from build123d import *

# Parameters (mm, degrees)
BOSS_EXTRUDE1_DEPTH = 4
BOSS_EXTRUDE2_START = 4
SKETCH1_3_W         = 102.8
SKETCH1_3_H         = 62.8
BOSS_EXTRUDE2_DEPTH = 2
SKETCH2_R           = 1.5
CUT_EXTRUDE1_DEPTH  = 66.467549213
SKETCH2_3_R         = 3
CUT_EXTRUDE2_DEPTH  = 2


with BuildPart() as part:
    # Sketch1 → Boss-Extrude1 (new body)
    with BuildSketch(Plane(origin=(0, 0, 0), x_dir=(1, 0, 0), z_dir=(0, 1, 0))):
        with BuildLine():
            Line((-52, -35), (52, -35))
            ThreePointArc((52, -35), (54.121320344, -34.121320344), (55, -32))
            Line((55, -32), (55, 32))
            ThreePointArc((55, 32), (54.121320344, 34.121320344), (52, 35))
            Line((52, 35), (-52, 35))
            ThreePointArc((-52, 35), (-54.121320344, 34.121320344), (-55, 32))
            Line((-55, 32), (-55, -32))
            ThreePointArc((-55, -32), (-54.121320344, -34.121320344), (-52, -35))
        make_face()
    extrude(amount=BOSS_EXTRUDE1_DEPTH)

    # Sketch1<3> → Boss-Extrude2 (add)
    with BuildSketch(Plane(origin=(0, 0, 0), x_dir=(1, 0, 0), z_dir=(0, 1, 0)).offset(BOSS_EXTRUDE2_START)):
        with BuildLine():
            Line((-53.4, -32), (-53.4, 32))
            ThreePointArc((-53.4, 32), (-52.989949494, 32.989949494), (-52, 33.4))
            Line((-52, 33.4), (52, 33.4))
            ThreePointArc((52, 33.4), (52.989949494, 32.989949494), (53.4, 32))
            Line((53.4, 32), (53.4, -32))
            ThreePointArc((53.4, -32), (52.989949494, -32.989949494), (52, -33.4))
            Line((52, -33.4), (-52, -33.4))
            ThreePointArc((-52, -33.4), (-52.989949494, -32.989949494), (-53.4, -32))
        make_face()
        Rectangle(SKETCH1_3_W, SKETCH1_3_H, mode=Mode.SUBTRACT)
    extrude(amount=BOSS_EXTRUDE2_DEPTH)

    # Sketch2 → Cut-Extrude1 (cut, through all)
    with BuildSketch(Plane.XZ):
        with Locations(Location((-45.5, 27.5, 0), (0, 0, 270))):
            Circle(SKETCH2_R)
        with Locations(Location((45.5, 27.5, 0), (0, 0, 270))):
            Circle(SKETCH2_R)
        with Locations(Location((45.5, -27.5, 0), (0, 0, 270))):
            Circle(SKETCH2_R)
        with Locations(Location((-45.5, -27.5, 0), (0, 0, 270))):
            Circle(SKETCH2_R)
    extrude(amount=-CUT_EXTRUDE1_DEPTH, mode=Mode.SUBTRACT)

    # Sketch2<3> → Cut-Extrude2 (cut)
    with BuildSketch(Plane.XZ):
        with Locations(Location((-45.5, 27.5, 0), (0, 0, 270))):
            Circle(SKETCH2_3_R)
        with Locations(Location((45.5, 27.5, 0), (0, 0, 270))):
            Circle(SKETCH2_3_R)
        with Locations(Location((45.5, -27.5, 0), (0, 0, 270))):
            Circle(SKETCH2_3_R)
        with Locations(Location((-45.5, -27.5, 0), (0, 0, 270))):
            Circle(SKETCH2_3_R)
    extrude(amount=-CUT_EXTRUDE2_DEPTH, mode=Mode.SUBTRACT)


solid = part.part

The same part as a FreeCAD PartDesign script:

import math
import FreeCAD as App
import Part
import Sketcher
from FreeCAD import Vector
Q = App.Units.Quantity

doc = App.newDocument("Part")
body = doc.addObject("PartDesign::Body", "Body")

sketch1 = body.newObject("Sketcher::SketchObject", "Sketch")
sketch1.AttachmentSupport = (doc.getObject("XZ_Plane"), [""])
sketch1.MapMode = "FlatFace"
sketch1.addGeometry(Part.LineSegment(Vector(-52, 35, 0), Vector(52, 35, 0)), False)
sketch1.addGeometry(Part.ArcOfCircle(Part.Circle(Vector(52, 32, 0), Vector(0, 0, 1), 3), math.radians(0), math.radians(90)), False)
sketch1.addGeometry(Part.LineSegment(Vector(55, 32, 0), Vector(55, -32, 0)), False)
sketch1.addGeometry(Part.ArcOfCircle(Part.Circle(Vector(52, -32, 0), Vector(0, 0, 1), 3), math.radians(-90), math.radians(0)), False)
sketch1.addGeometry(Part.LineSegment(Vector(52, -35, 0), Vector(-52, -35, 0)), False)
sketch1.addGeometry(Part.ArcOfCircle(Part.Circle(Vector(-52, -32, 0), Vector(0, 0, 1), 3), math.radians(180), math.radians(270)), False)
sketch1.addGeometry(Part.LineSegment(Vector(-55, -32, 0), Vector(-55, 32, 0)), False)
sketch1.addGeometry(Part.ArcOfCircle(Part.Circle(Vector(-52, 32, 0), Vector(0, 0, 1), 3), math.radians(90), math.radians(180)), False)
sketch1.addConstraint(Sketcher.Constraint("Tangent", 0, 2, 1, 2))
sketch1.addConstraint(Sketcher.Constraint("Tangent", 1, 1, 2, 1))
sketch1.addConstraint(Sketcher.Constraint("Tangent", 2, 2, 3, 2))
sketch1.addConstraint(Sketcher.Constraint("Tangent", 3, 1, 4, 1))
sketch1.addConstraint(Sketcher.Constraint("Tangent", 4, 2, 5, 2))
sketch1.addConstraint(Sketcher.Constraint("Tangent", 5, 1, 6, 1))
sketch1.addConstraint(Sketcher.Constraint("Tangent", 6, 2, 7, 2))
sketch1.addConstraint(Sketcher.Constraint("Tangent", 7, 1, 0, 1))
sketch1.addConstraint(Sketcher.Constraint("Horizontal", 0))
sketch1.addConstraint(Sketcher.Constraint("Vertical", 2))
sketch1.addConstraint(Sketcher.Constraint("Horizontal", 4))
sketch1.addConstraint(Sketcher.Constraint("Vertical", 6))
sketch1.addConstraint(Sketcher.Constraint("Equal", 1, 3))
sketch1.addConstraint(Sketcher.Constraint("Equal", 3, 5))
sketch1.addConstraint(Sketcher.Constraint("Equal", 5, 7))
sketch1.addConstraint(Sketcher.Constraint("Symmetric", 1, 3, 5, 3, -1, 1))
sketch1.addConstraint(Sketcher.Constraint("Radius", 1, Q("3 mm")))
sketch1.addConstraint(Sketcher.Constraint("DistanceX", 0, 1, 0, 2, Q("104 mm")))
sketch1.addConstraint(Sketcher.Constraint("DistanceY", 2, 2, 2, 1, Q("64 mm")))
pad1 = body.newObject("PartDesign::Pad", "Pad")
pad1.Profile = sketch1
pad1.Length = 4
pad1.Reversed = True

sketch2 = body.newObject("Sketcher::SketchObject", "Sketch001")
sketch2.AttachmentSupport = (doc.getObject("XZ_Plane"), [""])
sketch2.MapMode = "FlatFace"
sketch2.AttachmentOffset = App.Placement(Vector(0, 0, -4), App.Rotation())
sketch2.addGeometry(Part.LineSegment(Vector(-53.4, -32, 0), Vector(-53.4, 32, 0)), False)
sketch2.addGeometry(Part.ArcOfCircle(Part.Circle(Vector(-52, 32, 0), Vector(0, 0, 1), 1.4), math.radians(90), math.radians(180)), False)
sketch2.addGeometry(Part.LineSegment(Vector(-52, 33.4, 0), Vector(52, 33.4, 0)), False)
sketch2.addGeometry(Part.ArcOfCircle(Part.Circle(Vector(52, 32, 0), Vector(0, 0, 1), 1.4), math.radians(0), math.radians(90)), False)
sketch2.addGeometry(Part.LineSegment(Vector(53.4, 32, 0), Vector(53.4, -32, 0)), False)
sketch2.addGeometry(Part.ArcOfCircle(Part.Circle(Vector(52, -32, 0), Vector(0, 0, 1), 1.4), math.radians(-90), math.radians(0)), False)
sketch2.addGeometry(Part.LineSegment(Vector(52, -33.4, 0), Vector(-52, -33.4, 0)), False)
sketch2.addGeometry(Part.ArcOfCircle(Part.Circle(Vector(-52, -32, 0), Vector(0, 0, 1), 1.4), math.radians(180), math.radians(270)), False)
sketch2.addGeometry(Part.LineSegment(Vector(-51.4, 31.4, 0), Vector(-51.4, -31.4, 0)), False)
sketch2.addGeometry(Part.LineSegment(Vector(-51.4, -31.4, 0), Vector(51.4, -31.4, 0)), False)
sketch2.addGeometry(Part.LineSegment(Vector(51.4, -31.4, 0), Vector(51.4, 31.4, 0)), False)
sketch2.addGeometry(Part.LineSegment(Vector(51.4, 31.4, 0), Vector(-51.4, 31.4, 0)), False)
sketch2.addConstraint(Sketcher.Constraint("Tangent", 0, 2, 1, 2))
sketch2.addConstraint(Sketcher.Constraint("Tangent", 1, 1, 2, 1))
sketch2.addConstraint(Sketcher.Constraint("Tangent", 2, 2, 3, 2))
sketch2.addConstraint(Sketcher.Constraint("Tangent", 3, 1, 4, 1))
sketch2.addConstraint(Sketcher.Constraint("Tangent", 4, 2, 5, 2))
sketch2.addConstraint(Sketcher.Constraint("Tangent", 5, 1, 6, 1))
sketch2.addConstraint(Sketcher.Constraint("Tangent", 6, 2, 7, 2))
sketch2.addConstraint(Sketcher.Constraint("Tangent", 7, 1, 0, 1))
sketch2.addConstraint(Sketcher.Constraint("Coincident", 8, 2, 9, 1))
sketch2.addConstraint(Sketcher.Constraint("Coincident", 9, 2, 10, 1))
sketch2.addConstraint(Sketcher.Constraint("Coincident", 10, 2, 11, 1))
sketch2.addConstraint(Sketcher.Constraint("Coincident", 11, 2, 8, 1))
sketch2.addConstraint(Sketcher.Constraint("Vertical", 0))
sketch2.addConstraint(Sketcher.Constraint("Horizontal", 2))
sketch2.addConstraint(Sketcher.Constraint("Vertical", 4))
sketch2.addConstraint(Sketcher.Constraint("Horizontal", 6))
sketch2.addConstraint(Sketcher.Constraint("Vertical", 8))
sketch2.addConstraint(Sketcher.Constraint("Horizontal", 9))
sketch2.addConstraint(Sketcher.Constraint("Vertical", 10))
sketch2.addConstraint(Sketcher.Constraint("Horizontal", 11))
sketch2.addConstraint(Sketcher.Constraint("Equal", 1, 3))
sketch2.addConstraint(Sketcher.Constraint("Equal", 3, 5))
sketch2.addConstraint(Sketcher.Constraint("Equal", 5, 7))
sketch2.addConstraint(Sketcher.Constraint("Symmetric", 1, 3, 5, 3, -1, 1))
sketch2.addConstraint(Sketcher.Constraint("Symmetric", 8, 2, 10, 2, -1, 1))
sketch2.addConstraint(Sketcher.Constraint("Radius", 1, Q("1.4 mm")))
sketch2.addConstraint(Sketcher.Constraint("DistanceX", 2, 1, 2, 2, Q("104 mm")))
sketch2.addConstraint(Sketcher.Constraint("DistanceY", 0, 1, 0, 2, Q("64 mm")))
sketch2.addConstraint(Sketcher.Constraint("DistanceX", 9, 1, 9, 2, Q("102.8 mm")))
sketch2.addConstraint(Sketcher.Constraint("DistanceY", 8, 2, 8, 1, Q("62.8 mm")))
pad2 = body.newObject("PartDesign::Pad", "Pad001")
pad2.Profile = sketch2
pad2.Length = 2
pad2.Reversed = True

sketch3 = body.newObject("Sketcher::SketchObject", "Sketch002")
sketch3.AttachmentSupport = (doc.getObject("XZ_Plane"), [""])
sketch3.MapMode = "FlatFace"
sketch3.addGeometry(Part.Circle(Vector(-45.5, 27.5, 0), Vector(0, 0, 1), 1.5), False)
sketch3.addGeometry(Part.Circle(Vector(45.5, 27.5, 0), Vector(0, 0, 1), 1.5), False)
sketch3.addGeometry(Part.Circle(Vector(45.5, -27.5, 0), Vector(0, 0, 1), 1.5), False)
sketch3.addGeometry(Part.Circle(Vector(-45.5, -27.5, 0), Vector(0, 0, 1), 1.5), False)
sketch3.addConstraint(Sketcher.Constraint("Equal", 0, 1))
sketch3.addConstraint(Sketcher.Constraint("Equal", 1, 2))
sketch3.addConstraint(Sketcher.Constraint("Equal", 2, 3))
sketch3.addConstraint(Sketcher.Constraint("Symmetric", 0, 3, 2, 3, -1, 1))
sketch3.addConstraint(Sketcher.Constraint("Symmetric", 1, 3, 3, 3, -1, 1))
sketch3.addConstraint(Sketcher.Constraint("Symmetric", 0, 3, 1, 3, -2))
sketch3.addConstraint(Sketcher.Constraint("Diameter", 0, Q("3 mm")))
sketch3.addConstraint(Sketcher.Constraint("DistanceX", 0, 3, 1, 3, Q("91 mm")))
sketch3.addConstraint(Sketcher.Constraint("DistanceY", 2, 3, 1, 3, Q("55 mm")))
pocket1 = body.newObject("PartDesign::Pocket", "Pocket")
pocket1.Profile = sketch3
pocket1.Type = "ThroughAll"

sketch4 = body.newObject("Sketcher::SketchObject", "Sketch003")
sketch4.AttachmentSupport = (doc.getObject("XZ_Plane"), [""])
sketch4.MapMode = "FlatFace"
sketch4.addGeometry(Part.Circle(Vector(-45.5, 27.5, 0), Vector(0, 0, 1), 3), False)
sketch4.addGeometry(Part.Circle(Vector(45.5, 27.5, 0), Vector(0, 0, 1), 3), False)
sketch4.addGeometry(Part.Circle(Vector(45.5, -27.5, 0), Vector(0, 0, 1), 3), False)
sketch4.addGeometry(Part.Circle(Vector(-45.5, -27.5, 0), Vector(0, 0, 1), 3), False)
sketch4.addConstraint(Sketcher.Constraint("Equal", 0, 1))
sketch4.addConstraint(Sketcher.Constraint("Equal", 1, 2))
sketch4.addConstraint(Sketcher.Constraint("Equal", 2, 3))
sketch4.addConstraint(Sketcher.Constraint("Symmetric", 0, 3, 2, 3, -1, 1))
sketch4.addConstraint(Sketcher.Constraint("Symmetric", 1, 3, 3, 3, -1, 1))
sketch4.addConstraint(Sketcher.Constraint("Symmetric", 0, 3, 1, 3, -2))
sketch4.addConstraint(Sketcher.Constraint("Diameter", 0, Q("6 mm")))
sketch4.addConstraint(Sketcher.Constraint("DistanceX", 0, 3, 1, 3, Q("91 mm")))
sketch4.addConstraint(Sketcher.Constraint("DistanceY", 2, 3, 1, 3, Q("55 mm")))
pocket2 = body.newObject("PartDesign::Pocket", "Pocket001")
pocket2.Profile = sketch4
pocket2.Length = 2

doc.recompute()
